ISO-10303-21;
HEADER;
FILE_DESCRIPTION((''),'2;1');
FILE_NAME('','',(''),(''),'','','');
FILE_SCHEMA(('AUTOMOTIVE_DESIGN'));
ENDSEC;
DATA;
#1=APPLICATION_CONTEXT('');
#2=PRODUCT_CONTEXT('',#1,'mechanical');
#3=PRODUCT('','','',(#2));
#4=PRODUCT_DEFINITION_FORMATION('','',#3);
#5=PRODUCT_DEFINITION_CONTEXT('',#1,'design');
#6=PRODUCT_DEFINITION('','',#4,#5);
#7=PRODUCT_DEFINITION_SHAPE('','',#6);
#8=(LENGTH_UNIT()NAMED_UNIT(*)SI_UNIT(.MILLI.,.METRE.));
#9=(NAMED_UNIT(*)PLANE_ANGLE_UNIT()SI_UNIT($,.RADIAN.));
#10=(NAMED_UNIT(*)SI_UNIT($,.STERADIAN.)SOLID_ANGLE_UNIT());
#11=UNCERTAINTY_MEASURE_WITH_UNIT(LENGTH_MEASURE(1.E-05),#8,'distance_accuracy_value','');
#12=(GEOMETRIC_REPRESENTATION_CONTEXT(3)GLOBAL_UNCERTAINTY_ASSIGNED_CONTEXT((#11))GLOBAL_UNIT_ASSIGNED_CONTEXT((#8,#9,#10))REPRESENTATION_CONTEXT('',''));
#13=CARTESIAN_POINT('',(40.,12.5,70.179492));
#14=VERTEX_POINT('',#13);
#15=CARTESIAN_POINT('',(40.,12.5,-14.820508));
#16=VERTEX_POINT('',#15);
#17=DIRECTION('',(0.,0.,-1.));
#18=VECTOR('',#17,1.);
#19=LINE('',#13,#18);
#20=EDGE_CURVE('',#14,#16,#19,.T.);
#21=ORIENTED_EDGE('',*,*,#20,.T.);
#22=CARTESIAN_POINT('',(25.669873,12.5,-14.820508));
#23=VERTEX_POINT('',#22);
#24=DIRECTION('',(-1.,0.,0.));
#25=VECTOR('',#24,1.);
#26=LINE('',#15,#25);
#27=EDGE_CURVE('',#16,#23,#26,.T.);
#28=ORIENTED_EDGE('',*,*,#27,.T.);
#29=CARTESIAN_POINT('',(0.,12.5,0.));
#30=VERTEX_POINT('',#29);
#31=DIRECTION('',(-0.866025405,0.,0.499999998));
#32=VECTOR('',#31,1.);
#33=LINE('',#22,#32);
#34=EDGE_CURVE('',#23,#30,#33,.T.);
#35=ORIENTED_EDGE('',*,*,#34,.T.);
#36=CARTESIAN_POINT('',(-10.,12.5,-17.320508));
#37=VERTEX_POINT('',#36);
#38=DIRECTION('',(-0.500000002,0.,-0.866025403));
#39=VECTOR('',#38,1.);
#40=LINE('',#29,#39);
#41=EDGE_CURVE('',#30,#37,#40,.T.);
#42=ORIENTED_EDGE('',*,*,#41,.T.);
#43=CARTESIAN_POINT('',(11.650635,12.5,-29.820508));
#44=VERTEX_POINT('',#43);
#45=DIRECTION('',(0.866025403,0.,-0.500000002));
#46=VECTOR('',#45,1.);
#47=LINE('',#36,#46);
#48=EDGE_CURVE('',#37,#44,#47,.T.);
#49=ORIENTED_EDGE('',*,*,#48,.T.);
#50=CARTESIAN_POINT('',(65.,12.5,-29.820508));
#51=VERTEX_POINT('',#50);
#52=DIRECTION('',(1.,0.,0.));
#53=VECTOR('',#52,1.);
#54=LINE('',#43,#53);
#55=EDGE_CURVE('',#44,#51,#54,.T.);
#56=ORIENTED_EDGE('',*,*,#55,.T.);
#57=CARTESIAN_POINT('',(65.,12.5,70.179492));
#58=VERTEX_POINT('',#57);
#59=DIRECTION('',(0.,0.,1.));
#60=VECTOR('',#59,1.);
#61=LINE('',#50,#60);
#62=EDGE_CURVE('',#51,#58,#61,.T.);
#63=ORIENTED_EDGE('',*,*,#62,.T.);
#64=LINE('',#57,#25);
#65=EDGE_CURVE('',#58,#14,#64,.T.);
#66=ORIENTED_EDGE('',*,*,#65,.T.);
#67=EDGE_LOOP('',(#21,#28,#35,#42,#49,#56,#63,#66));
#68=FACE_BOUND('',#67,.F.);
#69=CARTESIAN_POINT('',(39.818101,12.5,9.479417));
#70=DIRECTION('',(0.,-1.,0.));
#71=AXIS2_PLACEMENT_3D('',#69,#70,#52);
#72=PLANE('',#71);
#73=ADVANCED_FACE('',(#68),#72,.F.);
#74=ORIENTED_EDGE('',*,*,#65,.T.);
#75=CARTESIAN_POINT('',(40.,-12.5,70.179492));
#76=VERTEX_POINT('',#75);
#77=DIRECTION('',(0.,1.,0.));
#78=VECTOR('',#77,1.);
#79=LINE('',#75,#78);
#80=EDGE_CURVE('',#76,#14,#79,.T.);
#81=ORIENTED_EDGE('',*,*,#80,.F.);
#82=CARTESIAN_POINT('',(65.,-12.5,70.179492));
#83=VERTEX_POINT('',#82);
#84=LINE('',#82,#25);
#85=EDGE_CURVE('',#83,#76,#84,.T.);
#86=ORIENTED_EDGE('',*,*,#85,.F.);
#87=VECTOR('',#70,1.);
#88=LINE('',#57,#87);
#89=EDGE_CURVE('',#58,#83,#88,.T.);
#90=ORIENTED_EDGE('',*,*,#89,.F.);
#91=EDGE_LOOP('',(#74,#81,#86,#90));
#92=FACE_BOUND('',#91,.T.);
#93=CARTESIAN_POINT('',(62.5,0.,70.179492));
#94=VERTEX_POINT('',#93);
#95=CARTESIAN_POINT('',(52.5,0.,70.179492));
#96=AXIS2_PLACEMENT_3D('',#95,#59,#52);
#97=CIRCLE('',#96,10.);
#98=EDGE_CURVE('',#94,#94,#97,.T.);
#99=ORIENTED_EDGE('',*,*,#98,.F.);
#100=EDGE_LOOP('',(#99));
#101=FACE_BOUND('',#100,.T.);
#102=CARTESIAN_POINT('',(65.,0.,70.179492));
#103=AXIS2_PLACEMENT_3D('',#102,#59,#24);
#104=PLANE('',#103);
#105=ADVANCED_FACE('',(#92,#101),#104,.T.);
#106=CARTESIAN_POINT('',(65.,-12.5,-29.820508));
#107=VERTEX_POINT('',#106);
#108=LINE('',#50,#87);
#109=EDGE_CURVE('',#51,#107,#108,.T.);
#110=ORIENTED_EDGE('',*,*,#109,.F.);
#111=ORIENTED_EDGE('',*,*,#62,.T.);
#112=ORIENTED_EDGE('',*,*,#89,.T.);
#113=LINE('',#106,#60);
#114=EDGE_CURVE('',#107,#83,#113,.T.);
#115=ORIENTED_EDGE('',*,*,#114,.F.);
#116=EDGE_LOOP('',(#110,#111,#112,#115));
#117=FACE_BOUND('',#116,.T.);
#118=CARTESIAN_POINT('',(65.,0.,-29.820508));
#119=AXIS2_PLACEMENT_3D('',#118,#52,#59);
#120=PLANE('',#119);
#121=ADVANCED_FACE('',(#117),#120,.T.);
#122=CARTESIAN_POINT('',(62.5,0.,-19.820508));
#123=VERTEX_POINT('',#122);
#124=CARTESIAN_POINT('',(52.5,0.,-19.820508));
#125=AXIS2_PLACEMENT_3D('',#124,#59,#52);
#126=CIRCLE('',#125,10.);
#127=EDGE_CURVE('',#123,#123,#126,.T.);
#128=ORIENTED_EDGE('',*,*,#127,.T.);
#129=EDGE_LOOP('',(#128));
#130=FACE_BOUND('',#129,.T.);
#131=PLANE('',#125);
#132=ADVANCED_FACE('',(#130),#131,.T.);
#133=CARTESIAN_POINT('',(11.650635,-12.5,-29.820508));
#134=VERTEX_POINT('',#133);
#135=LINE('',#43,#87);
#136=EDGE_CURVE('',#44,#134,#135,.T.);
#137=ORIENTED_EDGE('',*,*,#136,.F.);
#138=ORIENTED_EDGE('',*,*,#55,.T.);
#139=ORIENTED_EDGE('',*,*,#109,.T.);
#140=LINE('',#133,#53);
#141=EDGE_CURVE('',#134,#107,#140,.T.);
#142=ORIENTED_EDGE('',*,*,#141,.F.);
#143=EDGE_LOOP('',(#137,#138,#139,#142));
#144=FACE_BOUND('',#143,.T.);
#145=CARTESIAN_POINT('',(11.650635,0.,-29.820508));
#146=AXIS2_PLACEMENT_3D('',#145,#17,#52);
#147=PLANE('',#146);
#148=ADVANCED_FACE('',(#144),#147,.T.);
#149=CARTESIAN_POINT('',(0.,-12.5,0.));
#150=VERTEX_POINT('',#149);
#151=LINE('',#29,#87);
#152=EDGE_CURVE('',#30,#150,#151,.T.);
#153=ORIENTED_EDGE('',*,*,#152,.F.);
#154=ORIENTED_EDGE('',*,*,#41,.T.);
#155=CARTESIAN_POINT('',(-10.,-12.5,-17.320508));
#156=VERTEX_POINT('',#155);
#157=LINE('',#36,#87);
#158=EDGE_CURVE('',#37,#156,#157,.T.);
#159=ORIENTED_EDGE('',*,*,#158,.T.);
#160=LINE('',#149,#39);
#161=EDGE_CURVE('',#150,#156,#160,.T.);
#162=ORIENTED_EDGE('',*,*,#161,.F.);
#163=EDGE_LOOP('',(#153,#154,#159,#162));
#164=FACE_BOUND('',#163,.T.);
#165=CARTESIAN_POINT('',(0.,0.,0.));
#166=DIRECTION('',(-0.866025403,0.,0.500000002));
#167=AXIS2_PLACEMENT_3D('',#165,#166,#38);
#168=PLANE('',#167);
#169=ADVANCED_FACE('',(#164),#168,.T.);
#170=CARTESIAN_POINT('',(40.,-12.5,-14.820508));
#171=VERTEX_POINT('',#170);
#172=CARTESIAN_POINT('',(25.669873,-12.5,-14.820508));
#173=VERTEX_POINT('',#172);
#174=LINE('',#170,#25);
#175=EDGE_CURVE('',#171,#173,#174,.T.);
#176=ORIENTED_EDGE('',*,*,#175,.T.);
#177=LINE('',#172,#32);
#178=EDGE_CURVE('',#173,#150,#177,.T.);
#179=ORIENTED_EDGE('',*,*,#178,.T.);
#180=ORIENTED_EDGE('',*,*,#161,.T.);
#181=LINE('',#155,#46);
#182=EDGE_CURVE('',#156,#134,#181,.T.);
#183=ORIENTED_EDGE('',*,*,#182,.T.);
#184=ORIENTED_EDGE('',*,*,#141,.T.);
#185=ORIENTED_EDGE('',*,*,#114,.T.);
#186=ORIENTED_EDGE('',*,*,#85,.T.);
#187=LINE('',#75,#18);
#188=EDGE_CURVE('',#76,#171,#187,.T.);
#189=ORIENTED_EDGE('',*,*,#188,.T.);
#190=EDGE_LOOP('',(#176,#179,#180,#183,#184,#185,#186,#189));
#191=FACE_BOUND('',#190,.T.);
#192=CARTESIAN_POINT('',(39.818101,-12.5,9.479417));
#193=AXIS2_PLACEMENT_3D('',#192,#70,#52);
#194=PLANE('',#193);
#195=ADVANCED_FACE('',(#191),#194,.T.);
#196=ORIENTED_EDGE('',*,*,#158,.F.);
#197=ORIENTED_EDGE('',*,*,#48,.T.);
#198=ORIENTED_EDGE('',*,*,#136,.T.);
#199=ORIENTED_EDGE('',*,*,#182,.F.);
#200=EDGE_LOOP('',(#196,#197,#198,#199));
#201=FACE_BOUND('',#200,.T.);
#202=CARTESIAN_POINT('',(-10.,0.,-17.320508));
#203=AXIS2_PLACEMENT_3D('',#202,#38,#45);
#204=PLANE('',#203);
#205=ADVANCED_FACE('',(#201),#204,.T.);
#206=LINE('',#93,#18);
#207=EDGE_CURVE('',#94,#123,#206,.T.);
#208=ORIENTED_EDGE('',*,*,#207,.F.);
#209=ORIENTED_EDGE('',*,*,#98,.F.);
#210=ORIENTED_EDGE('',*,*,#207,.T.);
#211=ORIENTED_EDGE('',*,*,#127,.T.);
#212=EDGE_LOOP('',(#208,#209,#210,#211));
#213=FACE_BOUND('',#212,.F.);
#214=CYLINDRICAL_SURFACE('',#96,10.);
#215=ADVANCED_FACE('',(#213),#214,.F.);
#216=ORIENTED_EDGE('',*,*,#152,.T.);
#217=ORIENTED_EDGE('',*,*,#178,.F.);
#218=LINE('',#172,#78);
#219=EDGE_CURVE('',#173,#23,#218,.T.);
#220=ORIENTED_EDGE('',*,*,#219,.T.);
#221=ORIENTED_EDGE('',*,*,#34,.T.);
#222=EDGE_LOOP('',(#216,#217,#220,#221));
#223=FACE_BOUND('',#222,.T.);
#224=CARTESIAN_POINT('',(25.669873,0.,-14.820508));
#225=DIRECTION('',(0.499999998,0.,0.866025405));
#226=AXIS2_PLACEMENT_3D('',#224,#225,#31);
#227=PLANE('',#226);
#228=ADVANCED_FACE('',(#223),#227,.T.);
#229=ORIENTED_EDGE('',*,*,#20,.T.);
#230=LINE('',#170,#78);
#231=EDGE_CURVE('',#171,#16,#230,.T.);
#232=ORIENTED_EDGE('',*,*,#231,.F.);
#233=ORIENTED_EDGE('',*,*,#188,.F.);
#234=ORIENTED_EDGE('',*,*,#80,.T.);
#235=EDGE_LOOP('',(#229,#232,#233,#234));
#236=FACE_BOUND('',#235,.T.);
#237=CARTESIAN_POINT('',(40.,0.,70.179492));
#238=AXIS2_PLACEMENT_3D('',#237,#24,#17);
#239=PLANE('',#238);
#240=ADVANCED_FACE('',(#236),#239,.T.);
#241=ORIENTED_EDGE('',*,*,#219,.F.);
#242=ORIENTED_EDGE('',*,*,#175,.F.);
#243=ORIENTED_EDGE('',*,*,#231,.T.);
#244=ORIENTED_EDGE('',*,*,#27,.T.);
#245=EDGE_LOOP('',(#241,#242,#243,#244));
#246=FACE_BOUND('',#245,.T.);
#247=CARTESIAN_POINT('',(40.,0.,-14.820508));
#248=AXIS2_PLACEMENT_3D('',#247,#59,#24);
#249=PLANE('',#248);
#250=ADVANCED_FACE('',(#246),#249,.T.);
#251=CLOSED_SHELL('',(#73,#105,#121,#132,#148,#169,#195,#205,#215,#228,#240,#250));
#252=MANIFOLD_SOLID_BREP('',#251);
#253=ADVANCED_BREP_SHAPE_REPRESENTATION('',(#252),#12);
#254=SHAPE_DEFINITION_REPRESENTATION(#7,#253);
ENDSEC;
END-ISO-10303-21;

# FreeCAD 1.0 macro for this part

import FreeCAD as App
import Part
import Sketcher

V = App.Vector
Q = App.Units.Quantity


def add_polygon(sketch, points):
    """Adds a closed chain of lines whose ends are joined by coincident constraints."""
    first, n = sketch.GeometryCount, len(points)
    for a, b in zip(points, points[1:] + points[:1]):
        sketch.addGeometry(Part.LineSegment(App.Vector(*a, 0), App.Vector(*b, 0)), False)
    for i in range(n):
        sketch.addConstraint(Sketcher.Constraint("Coincident", first + i, 2, first + (i + 1) % n, 1))

doc = App.newDocument("Part")
body = doc.addObject("PartDesign::Body", "Body")

sketch1 = body.newObject("Sketcher::SketchObject", "Sketch")
sketch1.AttachmentSupport = (doc.getObject("XZ_Plane"), [""])
sketch1.MapMode = "FlatFace"
add_polygon(sketch1, [(26, -15), (0, 0), (-10, -17), (12, -30), (65, -30), (65, 70), (40, 70), (40, -15)])
sketch1.addConstraint([
    Sketcher.Constraint("Horizontal", 3),
    Sketcher.Constraint("Vertical", 4),
    Sketcher.Constraint("Horizontal", 5),
    Sketcher.Constraint("Vertical", 6),
    Sketcher.Constraint("Horizontal", 7),
    Sketcher.Constraint("Coincident", 0, 2, -1, 1),
    Sketcher.Constraint("Perpendicular", 0, 1),
    Sketcher.Constraint("Perpendicular", 1, 2),
    Sketcher.Constraint("DistanceX", 5, 2, 5, 1, 25.0),
    Sketcher.Constraint("DistanceY", 4, 1, 4, 2, 100.0),
    Sketcher.Constraint("DistanceY", 6, 2, 6, 1, 85.0),
    Sketcher.Constraint("Angle", 0, Q("150 deg")),
    Sketcher.Constraint("Distance", 1, 20.0),
    Sketcher.Constraint("Distance", 2, 25.0),
    Sketcher.Constraint("DistanceX", -1, 1, 3, 2, 65.0),
])
pad1 = body.newObject("PartDesign::Pad", "Pad")
pad1.Profile = sketch1
pad1.Type = "TwoLengths"
pad1.Length = 12.5
pad1.Length2 = 12.5

sketch2 = body.newObject("Sketcher::SketchObject", "Sketch001")
sketch2.AttachmentSupport = (doc.getObject("XY_Plane"), [""])
sketch2.MapMode = "FlatFace"
sketch2.AttachmentOffset = App.Placement(V(0, 0, 70.179492), App.Rotation())
sketch2.addGeometry(Part.Circle(V(52, 0, 0), V(0, 0, 1), 10), False)
sketch2.addConstraint([
    Sketcher.Constraint("PointOnObject", 0, 3, -1),
    Sketcher.Constraint("Diameter", 0, 20.0),
    Sketcher.Constraint("DistanceX", -1, 1, 0, 3, 52.5),
])
pocket1 = body.newObject("PartDesign::Pocket", "Pocket")
pocket1.Profile = sketch2
pocket1.Length = 90

doc.recompute()
